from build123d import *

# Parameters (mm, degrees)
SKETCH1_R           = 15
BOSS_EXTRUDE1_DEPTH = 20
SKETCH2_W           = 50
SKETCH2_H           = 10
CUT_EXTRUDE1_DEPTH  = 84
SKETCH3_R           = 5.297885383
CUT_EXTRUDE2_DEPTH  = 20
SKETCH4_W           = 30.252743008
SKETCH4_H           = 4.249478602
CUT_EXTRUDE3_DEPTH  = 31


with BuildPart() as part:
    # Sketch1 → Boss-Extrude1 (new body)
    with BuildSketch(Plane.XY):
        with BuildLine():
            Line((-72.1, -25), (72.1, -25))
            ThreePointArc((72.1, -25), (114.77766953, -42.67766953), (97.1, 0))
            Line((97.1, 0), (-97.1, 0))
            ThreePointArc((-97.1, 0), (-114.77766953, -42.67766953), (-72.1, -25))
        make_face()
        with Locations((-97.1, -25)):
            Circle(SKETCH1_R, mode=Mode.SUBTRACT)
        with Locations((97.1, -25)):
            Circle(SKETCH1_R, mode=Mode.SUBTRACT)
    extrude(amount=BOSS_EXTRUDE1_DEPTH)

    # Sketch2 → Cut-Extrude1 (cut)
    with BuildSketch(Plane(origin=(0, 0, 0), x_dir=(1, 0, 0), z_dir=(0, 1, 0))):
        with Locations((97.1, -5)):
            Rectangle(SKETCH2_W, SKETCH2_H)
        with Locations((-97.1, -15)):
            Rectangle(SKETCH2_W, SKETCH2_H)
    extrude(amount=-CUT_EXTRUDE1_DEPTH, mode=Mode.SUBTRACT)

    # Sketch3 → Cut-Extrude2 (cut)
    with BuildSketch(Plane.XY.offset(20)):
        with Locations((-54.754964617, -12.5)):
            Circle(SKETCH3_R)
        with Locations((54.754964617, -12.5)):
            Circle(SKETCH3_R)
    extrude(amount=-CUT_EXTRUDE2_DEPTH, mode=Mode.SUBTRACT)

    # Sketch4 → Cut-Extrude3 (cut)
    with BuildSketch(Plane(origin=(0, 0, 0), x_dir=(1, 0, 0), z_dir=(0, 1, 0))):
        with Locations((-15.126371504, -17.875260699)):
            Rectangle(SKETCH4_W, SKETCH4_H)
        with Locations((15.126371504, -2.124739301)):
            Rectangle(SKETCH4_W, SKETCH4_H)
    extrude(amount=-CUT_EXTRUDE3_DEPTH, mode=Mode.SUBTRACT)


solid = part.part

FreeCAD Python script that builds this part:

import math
import FreeCAD as App
import Part
import Sketcher

doc = App.newDocument("Part")
body = doc.addObject("PartDesign::Body", "Body")

sketch1 = body.newObject("Sketcher::SketchObject", "Sketch")
sketch1.AttachmentSupport = (doc.getObject("XY_Plane"), [""])
sketch1.MapMode = "FlatFace"
sketch1.addGeometry(Part.LineSegment(App.Vector(-72, -25, 0), App.Vector(72, -25, 0)), False)
sketch1.addGeometry(Part.ArcOfCircle(Part.Circle(App.Vector(97, -25, 0), App.Vector(0, 0, 1), 25), math.radians(180), math.radians(450)), False)
sketch1.addGeometry(Part.LineSegment(App.Vector(97, 0, 0), App.Vector(-97, 0, 0)), False)
sketch1.addGeometry(Part.ArcOfCircle(Part.Circle(App.Vector(-97, -25, 0), App.Vector(0, 0, 1), 25), math.radians(90), math.radians(360)), False)
sketch1.addGeometry(Part.Circle(App.Vector(-97, -25, 0), App.Vector(0, 0, 1), 15), False)
sketch1.addGeometry(Part.Circle(App.Vector(97, -25, 0), App.Vector(0, 0, 1), 15), False)
sketch1.addConstraint(Sketcher.Constraint("Coincident", 0, 2, 1, 1))
sketch1.addConstraint(Sketcher.Constraint("Tangent", 1, 2, 2, 1))
sketch1.addConstraint(Sketcher.Constraint("Tangent", 2, 2, 3, 1))
sketch1.addConstraint(Sketcher.Constraint("Coincident", 3, 2, 0, 1))
sketch1.addConstraint(Sketcher.Constraint("Horizontal", 0))
sketch1.addConstraint(Sketcher.Constraint("Horizontal", 2))
sketch1.addConstraint(Sketcher.Constraint("Coincident", 4, 3, 3, 3))
sketch1.addConstraint(Sketcher.Constraint("Coincident", 5, 3, 1, 3))
sketch1.addConstraint(Sketcher.Constraint("Equal", 1, 3))
sketch1.addConstraint(Sketcher.Constraint("Equal", 4, 5))
sketch1.addConstraint(Sketcher.Constraint("Symmetric", 1, 2, 2, 2, -1, 1))
sketch1.addConstraint(Sketcher.Constraint("Horizontal", 5, 3, 0, 2))
sketch1.addConstraint(Sketcher.Constraint("Diameter", 4, 30.0))
sketch1.addConstraint(Sketcher.Constraint("Radius", 1, 25.0))
sketch1.addConstraint(Sketcher.Constraint("DistanceX", 0, 1, 0, 2, 144.2))
pad1 = body.newObject("PartDesign::Pad", "Pad")
pad1.Profile = sketch1
pad1.Length = 20

sketch2 = body.newObject("Sketcher::SketchObject", "Sketch001")
sketch2.AttachmentSupport = (doc.getObject("XZ_Plane"), [""])
sketch2.MapMode = "FlatFace"
sketch2.addGeometry(Part.LineSegment(App.Vector(72, 0, 0), App.Vector(72, 10, 0)), False)
sketch2.addGeometry(Part.LineSegment(App.Vector(72, 10, 0), App.Vector(122, 10, 0)), False)
sketch2.addGeometry(Part.LineSegment(App.Vector(122, 10, 0), App.Vector(122, 0, 0)), False)
sketch2.addGeometry(Part.LineSegment(App.Vector(122, 0, 0), App.Vector(72, 0, 0)), False)
sketch2.addGeometry(Part.LineSegment(App.Vector(-122, 10, 0), App.Vector(-122, 20, 0)), False)
sketch2.addGeometry(Part.LineSegment(App.Vector(-122, 20, 0), App.Vector(-72, 20, 0)), False)
sketch2.addGeometry(Part.LineSegment(App.Vector(-72, 20, 0), App.Vector(-72, 10, 0)), False)
sketch2.addGeometry(Part.LineSegment(App.Vector(-72, 10, 0), App.Vector(-122, 10, 0)), False)
sketch2.addConstraint(Sketcher.Constraint("Coincident", 0, 2, 1, 1))
sketch2.addConstraint(Sketcher.Constraint("Coincident", 1, 2, 2, 1))
sketch2.addConstraint(Sketcher.Constraint("Coincident", 2, 2, 3, 1))
sketch2.addConstraint(Sketcher.Constraint("Coincident", 3, 2, 0, 1))
sketch2.addConstraint(Sketcher.Constraint("Coincident", 4, 2, 5, 1))
sketch2.addConstraint(Sketcher.Constraint("Coincident", 5, 2, 6, 1))
sketch2.addConstraint(Sketcher.Constraint("Coincident", 6, 2, 7, 1))
sketch2.addConstraint(Sketcher.Constraint("Coincident", 7, 2, 4, 1))
sketch2.addConstraint(Sketcher.Constraint("Vertical", 0))
sketch2.addConstraint(Sketcher.Constraint("Horizontal", 1))
sketch2.addConstraint(Sketcher.Constraint("Vertical", 2))
sketch2.addConstraint(Sketcher.Constraint("Horizontal", 3))
sketch2.addConstraint(Sketcher.Constraint("Vertical", 4))
sketch2.addConstraint(Sketcher.Constraint("Horizontal", 5))
sketch2.addConstraint(Sketcher.Constraint("Vertical", 6))
sketch2.addConstraint(Sketcher.Constraint("Horizontal", 7))
sketch2.addConstraint(Sketcher.Constraint("Symmetric", 0, 2, 6, 2, -2))
sketch2.addConstraint(Sketcher.Constraint("PointOnObject", 2, 2, -1))
sketch2.addConstraint(Sketcher.Constraint("Equal", 3, 5))
sketch2.addConstraint(Sketcher.Constraint("Equal", 2, 4))
sketch2.addConstraint(Sketcher.Constraint("DistanceX", 1, 1, 1, 2, 50.0))
sketch2.addConstraint(Sketcher.Constraint("DistanceY", 0, 1, 0, 2, 10.0))
sketch2.addConstraint(Sketcher.Constraint("DistanceX", -1, 1, 0, 2, 72.1))
pocket1 = body.newObject("PartDesign::Pocket", "Pocket")
pocket1.Profile = sketch2
pocket1.Length = 84
pocket1.Reversed = True

sketch3 = body.newObject("Sketcher::SketchObject", "Sketch002")
sketch3.AttachmentSupport = (doc.getObject("XY_Plane"), [""])
sketch3.MapMode = "FlatFace"
sketch3.AttachmentOffset = App.Placement(App.Vector(0, 0, 20), App.Rotation())
sketch3.addGeometry(Part.Circle(App.Vector(-55, -12, 0), App.Vector(0, 0, 1), 5), False)
sketch3.addGeometry(Part.Circle(App.Vector(55, -12, 0), App.Vector(0, 0, 1), 5), False)
sketch3.addConstraint(Sketcher.Constraint("Equal", 0, 1))
sketch3.addConstraint(Sketcher.Constraint("Symmetric", 0, 3, 1, 3, -2))
sketch3.addConstraint(Sketcher.Constraint("DistanceY", 0, 3, -1, 1, 12.5))
sketch3.addConstraint(Sketcher.Constraint("Diameter", 0, 10.595771))
sketch3.addConstraint(Sketcher.Constraint("DistanceX", 0, 3, 1, 3, 109.509929))
pocket2 = body.newObject("PartDesign::Pocket", "Pocket001")
pocket2.Profile = sketch3
pocket2.Length = 20

sketch4 = body.newObject("Sketcher::SketchObject", "Sketch003")
sketch4.AttachmentSupport = (doc.getObject("XZ_Plane"), [""])
sketch4.MapMode = "FlatFace"
sketch4.addGeometry(Part.LineSegment(App.Vector(-30.3, 15.8, 0), App.Vector(-30.3, 20, 0)), False)
sketch4.addGeometry(Part.LineSegment(App.Vector(-30.3, 20, 0), App.Vector(0, 20, 0)), False)
sketch4.addGeometry(Part.LineSegment(App.Vector(0, 20, 0), App.Vector(0, 15.8, 0)), False)
sketch4.addGeometry(Part.LineSegment(App.Vector(0, 15.8, 0), App.Vector(-30.3, 15.8, 0)), False)
sketch4.addGeometry(Part.LineSegment(App.Vector(0, 0, 0), App.Vector(0, 4.2, 0)), False)
sketch4.addGeometry(Part.LineSegment(App.Vector(0, 4.2, 0), App.Vector(30.3, 4.2, 0)), False)
sketch4.addGeometry(Part.LineSegment(App.Vector(30.3, 4.2, 0), App.Vector(30.3, 0, 0)), False)
sketch4.addGeometry(Part.LineSegment(App.Vector(30.3, 0, 0), App.Vector(0, 0, 0)), False)
sketch4.addConstraint(Sketcher.Constraint("Coincident", 0, 2, 1, 1))
sketch4.addConstraint(Sketcher.Constraint("Coincident", 1, 2, 2, 1))
sketch4.addConstraint(Sketcher.Constraint("Coincident", 2, 2, 3, 1))
sketch4.addConstraint(Sketcher.Constraint("Coincident", 3, 2, 0, 1))
sketch4.addConstraint(Sketcher.Constraint("Coincident", 4, 2, 5, 1))
sketch4.addConstraint(Sketcher.Constraint("Coincident", 5, 2, 6, 1))
sketch4.addConstraint(Sketcher.Constraint("Coincident", 6, 2, 7, 1))
sketch4.addConstraint(Sketcher.Constraint("Coincident", 7, 2, 4, 1))
sketch4.addConstraint(Sketcher.Constraint("Vertical", 0))
sketch4.addConstraint(Sketcher.Constraint("Horizontal", 1))
sketch4.addConstraint(Sketcher.Constraint("Vertical", 2))
sketch4.addConstraint(Sketcher.Constraint("Horizontal", 3))
sketch4.addConstraint(Sketcher.Constraint("Vertical", 4))
sketch4.addConstraint(Sketcher.Constraint("Horizontal", 5))
sketch4.addConstraint(Sketcher.Constraint("Vertical", 6))
sketch4.addConstraint(Sketcher.Constraint("Horizontal", 7))
sketch4.addConstraint(Sketcher.Constraint("Coincident", 7, 2, -1, 1))
sketch4.addConstraint(Sketcher.Constraint("PointOnObject", 1, 2, -2))
sketch4.addConstraint(Sketcher.Constraint("Equal", 3, 5))
sketch4.addConstraint(Sketcher.Constraint("Equal", 2, 4))
sketch4.addConstraint(Sketcher.Constraint("DistanceY", -1, 1, 0, 2, 20.0))
sketch4.addConstraint(Sketcher.Constraint("DistanceY", 0, 1, 0, 2, 4.249479))
sketch4.addConstraint(Sketcher.Constraint("DistanceX", 1, 1, 1, 2, 30.252743))
pocket3 = body.newObject("PartDesign::Pocket", "Pocket002")
pocket3.Profile = sketch4
pocket3.Length = 31
pocket3.Reversed = True

doc.recompute()
